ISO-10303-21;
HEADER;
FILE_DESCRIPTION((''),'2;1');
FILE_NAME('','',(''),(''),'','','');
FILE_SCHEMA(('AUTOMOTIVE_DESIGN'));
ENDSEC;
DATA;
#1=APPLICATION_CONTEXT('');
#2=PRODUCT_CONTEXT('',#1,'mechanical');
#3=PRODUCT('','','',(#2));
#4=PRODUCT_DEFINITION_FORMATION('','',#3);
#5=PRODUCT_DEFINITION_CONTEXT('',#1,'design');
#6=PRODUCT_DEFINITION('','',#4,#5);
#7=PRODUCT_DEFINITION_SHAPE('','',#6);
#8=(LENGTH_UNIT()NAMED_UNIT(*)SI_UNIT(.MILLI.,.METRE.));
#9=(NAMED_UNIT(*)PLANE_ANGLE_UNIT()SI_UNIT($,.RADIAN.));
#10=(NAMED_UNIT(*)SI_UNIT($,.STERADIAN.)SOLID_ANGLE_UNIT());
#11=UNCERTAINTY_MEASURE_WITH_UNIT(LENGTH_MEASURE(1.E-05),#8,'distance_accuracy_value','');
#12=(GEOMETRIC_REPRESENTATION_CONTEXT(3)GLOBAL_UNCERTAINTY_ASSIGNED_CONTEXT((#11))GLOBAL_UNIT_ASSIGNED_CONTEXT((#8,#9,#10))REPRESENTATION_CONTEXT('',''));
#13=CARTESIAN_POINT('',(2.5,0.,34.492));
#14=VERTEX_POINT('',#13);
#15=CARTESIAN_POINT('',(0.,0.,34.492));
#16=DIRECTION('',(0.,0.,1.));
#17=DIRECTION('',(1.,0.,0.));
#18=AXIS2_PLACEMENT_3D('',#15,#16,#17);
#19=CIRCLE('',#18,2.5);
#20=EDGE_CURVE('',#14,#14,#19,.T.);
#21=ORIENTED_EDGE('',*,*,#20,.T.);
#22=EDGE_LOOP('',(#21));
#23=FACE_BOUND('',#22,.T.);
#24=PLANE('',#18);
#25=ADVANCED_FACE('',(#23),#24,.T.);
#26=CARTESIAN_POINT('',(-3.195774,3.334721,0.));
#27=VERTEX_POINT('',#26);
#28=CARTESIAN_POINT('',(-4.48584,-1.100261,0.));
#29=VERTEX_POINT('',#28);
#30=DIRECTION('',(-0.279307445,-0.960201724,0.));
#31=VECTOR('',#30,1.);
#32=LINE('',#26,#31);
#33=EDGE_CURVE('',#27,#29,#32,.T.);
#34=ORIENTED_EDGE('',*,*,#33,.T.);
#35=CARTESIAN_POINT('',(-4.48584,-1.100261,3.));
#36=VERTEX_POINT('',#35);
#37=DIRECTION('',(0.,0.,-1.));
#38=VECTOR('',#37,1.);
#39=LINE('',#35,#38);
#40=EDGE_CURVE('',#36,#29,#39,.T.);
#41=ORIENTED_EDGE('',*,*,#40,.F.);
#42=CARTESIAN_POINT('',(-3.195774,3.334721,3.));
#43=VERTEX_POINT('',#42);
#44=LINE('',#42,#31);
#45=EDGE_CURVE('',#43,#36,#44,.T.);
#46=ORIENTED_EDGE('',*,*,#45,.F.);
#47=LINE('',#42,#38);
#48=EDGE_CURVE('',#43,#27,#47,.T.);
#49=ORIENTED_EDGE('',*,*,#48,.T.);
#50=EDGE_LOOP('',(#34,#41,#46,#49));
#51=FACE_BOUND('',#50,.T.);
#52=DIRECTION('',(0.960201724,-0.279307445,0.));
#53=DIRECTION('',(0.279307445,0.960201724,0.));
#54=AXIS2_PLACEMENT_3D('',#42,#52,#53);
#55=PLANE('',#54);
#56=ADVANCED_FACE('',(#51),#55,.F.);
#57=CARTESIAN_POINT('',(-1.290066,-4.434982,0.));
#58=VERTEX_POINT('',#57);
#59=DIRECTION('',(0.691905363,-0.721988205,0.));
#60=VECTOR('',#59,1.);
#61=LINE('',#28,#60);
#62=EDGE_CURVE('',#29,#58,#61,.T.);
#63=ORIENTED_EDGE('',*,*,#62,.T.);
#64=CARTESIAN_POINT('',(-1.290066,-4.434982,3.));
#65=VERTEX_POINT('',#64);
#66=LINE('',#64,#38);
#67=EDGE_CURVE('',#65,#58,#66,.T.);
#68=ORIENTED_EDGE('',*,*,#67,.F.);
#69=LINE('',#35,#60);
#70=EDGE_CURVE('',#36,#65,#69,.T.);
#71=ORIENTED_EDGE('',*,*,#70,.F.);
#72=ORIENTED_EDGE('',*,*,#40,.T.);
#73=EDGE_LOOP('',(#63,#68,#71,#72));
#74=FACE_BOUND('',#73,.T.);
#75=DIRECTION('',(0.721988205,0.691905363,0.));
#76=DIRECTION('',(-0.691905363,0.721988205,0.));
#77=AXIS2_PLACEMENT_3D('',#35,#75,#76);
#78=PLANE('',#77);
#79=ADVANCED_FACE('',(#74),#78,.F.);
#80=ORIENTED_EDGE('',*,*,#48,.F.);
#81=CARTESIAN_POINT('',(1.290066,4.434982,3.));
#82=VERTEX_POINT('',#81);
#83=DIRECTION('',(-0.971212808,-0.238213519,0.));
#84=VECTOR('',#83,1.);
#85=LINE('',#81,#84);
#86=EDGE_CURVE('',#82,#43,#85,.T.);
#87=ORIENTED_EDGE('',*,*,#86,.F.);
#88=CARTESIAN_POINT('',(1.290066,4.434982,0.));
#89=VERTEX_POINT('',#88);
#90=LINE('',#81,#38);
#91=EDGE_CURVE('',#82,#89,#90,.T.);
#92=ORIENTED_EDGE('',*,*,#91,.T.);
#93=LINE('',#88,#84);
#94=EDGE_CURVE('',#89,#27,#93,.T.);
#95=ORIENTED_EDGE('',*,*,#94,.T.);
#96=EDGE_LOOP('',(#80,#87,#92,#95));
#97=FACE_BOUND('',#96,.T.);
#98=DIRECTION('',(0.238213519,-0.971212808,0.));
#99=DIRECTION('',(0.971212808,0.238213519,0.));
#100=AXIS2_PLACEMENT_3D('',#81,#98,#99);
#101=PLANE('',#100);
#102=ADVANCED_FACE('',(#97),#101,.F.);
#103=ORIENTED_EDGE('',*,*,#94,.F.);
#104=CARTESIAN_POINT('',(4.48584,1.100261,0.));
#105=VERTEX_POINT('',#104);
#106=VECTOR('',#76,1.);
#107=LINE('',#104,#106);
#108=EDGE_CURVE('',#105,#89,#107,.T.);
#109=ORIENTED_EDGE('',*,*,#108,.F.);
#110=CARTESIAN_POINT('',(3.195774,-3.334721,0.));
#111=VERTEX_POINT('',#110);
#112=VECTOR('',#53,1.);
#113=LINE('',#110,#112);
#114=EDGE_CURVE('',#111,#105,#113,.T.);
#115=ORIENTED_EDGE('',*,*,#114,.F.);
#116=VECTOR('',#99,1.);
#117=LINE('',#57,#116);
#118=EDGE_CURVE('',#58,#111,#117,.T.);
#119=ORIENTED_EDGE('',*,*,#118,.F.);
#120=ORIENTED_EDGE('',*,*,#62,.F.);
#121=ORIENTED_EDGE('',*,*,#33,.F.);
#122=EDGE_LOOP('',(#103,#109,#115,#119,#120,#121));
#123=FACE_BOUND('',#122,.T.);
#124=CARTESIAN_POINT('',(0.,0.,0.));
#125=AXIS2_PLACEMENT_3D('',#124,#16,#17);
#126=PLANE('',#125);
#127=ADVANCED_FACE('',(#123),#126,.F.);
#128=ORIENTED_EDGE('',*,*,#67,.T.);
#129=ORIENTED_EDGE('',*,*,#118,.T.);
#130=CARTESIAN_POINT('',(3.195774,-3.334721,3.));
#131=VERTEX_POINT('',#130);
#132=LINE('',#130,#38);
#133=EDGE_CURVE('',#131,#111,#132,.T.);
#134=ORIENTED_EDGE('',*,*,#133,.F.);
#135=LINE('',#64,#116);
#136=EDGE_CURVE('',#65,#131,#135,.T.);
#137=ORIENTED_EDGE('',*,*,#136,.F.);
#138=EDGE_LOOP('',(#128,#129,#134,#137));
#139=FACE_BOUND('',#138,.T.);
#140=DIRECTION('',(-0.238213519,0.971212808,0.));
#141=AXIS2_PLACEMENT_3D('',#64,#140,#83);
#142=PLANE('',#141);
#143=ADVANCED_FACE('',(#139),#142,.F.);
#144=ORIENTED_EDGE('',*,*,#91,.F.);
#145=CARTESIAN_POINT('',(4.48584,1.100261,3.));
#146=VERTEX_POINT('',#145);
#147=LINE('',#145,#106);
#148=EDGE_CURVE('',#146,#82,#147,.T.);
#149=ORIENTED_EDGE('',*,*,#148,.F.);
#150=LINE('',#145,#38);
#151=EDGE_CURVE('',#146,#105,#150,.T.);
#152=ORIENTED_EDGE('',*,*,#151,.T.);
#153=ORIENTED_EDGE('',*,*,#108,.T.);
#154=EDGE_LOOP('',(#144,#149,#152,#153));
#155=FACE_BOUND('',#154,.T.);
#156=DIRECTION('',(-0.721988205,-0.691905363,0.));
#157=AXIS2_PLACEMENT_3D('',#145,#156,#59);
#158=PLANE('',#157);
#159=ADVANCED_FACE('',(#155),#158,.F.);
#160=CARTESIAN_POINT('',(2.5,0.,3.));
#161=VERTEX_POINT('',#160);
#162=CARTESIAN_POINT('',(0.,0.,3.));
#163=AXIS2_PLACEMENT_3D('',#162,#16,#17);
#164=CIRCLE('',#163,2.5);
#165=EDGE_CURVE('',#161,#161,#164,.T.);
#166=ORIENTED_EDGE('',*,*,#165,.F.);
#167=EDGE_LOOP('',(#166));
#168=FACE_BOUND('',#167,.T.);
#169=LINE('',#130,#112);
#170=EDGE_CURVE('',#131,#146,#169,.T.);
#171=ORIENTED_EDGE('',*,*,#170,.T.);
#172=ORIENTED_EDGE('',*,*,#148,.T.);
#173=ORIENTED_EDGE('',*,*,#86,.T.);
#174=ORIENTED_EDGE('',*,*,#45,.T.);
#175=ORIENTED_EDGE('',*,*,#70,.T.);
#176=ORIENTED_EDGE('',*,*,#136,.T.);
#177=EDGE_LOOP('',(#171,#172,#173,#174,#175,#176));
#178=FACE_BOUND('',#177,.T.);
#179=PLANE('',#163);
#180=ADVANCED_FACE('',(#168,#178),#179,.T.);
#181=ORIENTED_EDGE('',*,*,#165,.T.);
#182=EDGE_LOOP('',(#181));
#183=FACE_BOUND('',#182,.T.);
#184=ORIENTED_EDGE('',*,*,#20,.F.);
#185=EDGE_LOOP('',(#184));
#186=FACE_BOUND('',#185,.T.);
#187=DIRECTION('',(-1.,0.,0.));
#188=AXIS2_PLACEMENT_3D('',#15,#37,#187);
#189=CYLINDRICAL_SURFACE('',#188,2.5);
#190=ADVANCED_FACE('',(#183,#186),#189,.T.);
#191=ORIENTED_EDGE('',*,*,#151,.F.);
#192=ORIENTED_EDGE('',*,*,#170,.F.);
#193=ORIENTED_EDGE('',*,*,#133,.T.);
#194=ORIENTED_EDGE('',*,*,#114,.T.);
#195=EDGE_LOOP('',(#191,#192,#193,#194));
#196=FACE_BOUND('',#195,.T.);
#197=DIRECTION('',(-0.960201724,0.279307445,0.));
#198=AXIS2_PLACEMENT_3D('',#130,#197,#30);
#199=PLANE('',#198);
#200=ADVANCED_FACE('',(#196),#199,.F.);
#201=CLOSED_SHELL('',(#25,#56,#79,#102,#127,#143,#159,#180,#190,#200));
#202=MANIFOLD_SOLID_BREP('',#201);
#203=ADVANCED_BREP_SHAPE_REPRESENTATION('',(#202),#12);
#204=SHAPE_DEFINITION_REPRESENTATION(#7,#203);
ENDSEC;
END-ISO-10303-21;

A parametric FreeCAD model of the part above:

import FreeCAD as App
import Part
import Sketcher

doc = App.newDocument("Part")
body = doc.addObject("PartDesign::Body", "Body")

sketch1 = body.newObject("Sketcher::SketchObject", "Sketch")
sketch1.AttachmentSupport = (doc.getObject("XY_Plane"), [""])
sketch1.MapMode = "FlatFace"
sketch1.addGeometry([
    Part.LineSegment(App.Vector(-3.195774, 3.334721, 0), App.Vector(-4.48584, -1.100261, 0)),
    Part.LineSegment(App.Vector(-4.48584, -1.100261, 0), App.Vector(-1.290066, -4.434982, 0)),
    Part.LineSegment(App.Vector(-1.290066, -4.434982, 0), App.Vector(3.195774, -3.334721, 0)),
    Part.LineSegment(App.Vector(3.195774, -3.334721, 0), App.Vector(4.48584, 1.100261, 0)),
    Part.LineSegment(App.Vector(4.48584, 1.100261, 0), App.Vector(1.290066, 4.434982, 0)),
    Part.LineSegment(App.Vector(1.290066, 4.434982, 0), App.Vector(-3.195774, 3.334721, 0)),
], False)
sketch1.addConstraint([
    Sketcher.Constraint("Coincident", 0, 2, 1, 1),
    Sketcher.Constraint("Coincident", 1, 2, 2, 1),
    Sketcher.Constraint("Coincident", 2, 2, 3, 1),
    Sketcher.Constraint("Coincident", 3, 2, 4, 1),
    Sketcher.Constraint("Coincident", 4, 2, 5, 1),
    Sketcher.Constraint("Coincident", 5, 2, 0, 1),
    Sketcher.Constraint("Symmetric", 0, 2, 3, 2, -1, 1),
    Sketcher.Constraint("Symmetric", 1, 2, 4, 2, -1, 1),
    Sketcher.Constraint("Symmetric", 2, 2, 5, 2, -1, 1),
    Sketcher.Constraint("Equal", 0, 1),
    Sketcher.Constraint("Equal", 1, 2),
    Sketcher.Constraint("DistanceX", 0, 2, -1, 1, 4.48584),
    Sketcher.Constraint("DistanceY", 0, 2, -1, 1, 1.100261),
    Sketcher.Constraint("DistanceY", 1, 2, -1, 1, 4.434982),
    Sketcher.Constraint("DistanceY", 2, 2, -1, 1, 3.334721),
])
pad1 = body.newObject("PartDesign::Pad", "Pad")
pad1.Profile = sketch1
pad1.Length = 3

sketch2 = body.newObject("Sketcher::SketchObject", "Sketch001")
sketch2.AttachmentSupport = (doc.getObject("XY_Plane"), [""])
sketch2.MapMode = "FlatFace"
sketch2.AttachmentOffset = App.Placement(App.Vector(0, 0, 3), App.Rotation())
sketch2.addGeometry(Part.Circle(App.Vector(0, 0, 0), App.Vector(0, 0, 1), 2.5), False)
sketch2.addConstraint([
    Sketcher.Constraint("Coincident", 0, 3, -1, 1),
    Sketcher.Constraint("Diameter", 0, 5.0),
])
pad2 = body.newObject("PartDesign::Pad", "Pad001")
pad2.Profile = sketch2
pad2.Length = 31.492

doc.recompute()
